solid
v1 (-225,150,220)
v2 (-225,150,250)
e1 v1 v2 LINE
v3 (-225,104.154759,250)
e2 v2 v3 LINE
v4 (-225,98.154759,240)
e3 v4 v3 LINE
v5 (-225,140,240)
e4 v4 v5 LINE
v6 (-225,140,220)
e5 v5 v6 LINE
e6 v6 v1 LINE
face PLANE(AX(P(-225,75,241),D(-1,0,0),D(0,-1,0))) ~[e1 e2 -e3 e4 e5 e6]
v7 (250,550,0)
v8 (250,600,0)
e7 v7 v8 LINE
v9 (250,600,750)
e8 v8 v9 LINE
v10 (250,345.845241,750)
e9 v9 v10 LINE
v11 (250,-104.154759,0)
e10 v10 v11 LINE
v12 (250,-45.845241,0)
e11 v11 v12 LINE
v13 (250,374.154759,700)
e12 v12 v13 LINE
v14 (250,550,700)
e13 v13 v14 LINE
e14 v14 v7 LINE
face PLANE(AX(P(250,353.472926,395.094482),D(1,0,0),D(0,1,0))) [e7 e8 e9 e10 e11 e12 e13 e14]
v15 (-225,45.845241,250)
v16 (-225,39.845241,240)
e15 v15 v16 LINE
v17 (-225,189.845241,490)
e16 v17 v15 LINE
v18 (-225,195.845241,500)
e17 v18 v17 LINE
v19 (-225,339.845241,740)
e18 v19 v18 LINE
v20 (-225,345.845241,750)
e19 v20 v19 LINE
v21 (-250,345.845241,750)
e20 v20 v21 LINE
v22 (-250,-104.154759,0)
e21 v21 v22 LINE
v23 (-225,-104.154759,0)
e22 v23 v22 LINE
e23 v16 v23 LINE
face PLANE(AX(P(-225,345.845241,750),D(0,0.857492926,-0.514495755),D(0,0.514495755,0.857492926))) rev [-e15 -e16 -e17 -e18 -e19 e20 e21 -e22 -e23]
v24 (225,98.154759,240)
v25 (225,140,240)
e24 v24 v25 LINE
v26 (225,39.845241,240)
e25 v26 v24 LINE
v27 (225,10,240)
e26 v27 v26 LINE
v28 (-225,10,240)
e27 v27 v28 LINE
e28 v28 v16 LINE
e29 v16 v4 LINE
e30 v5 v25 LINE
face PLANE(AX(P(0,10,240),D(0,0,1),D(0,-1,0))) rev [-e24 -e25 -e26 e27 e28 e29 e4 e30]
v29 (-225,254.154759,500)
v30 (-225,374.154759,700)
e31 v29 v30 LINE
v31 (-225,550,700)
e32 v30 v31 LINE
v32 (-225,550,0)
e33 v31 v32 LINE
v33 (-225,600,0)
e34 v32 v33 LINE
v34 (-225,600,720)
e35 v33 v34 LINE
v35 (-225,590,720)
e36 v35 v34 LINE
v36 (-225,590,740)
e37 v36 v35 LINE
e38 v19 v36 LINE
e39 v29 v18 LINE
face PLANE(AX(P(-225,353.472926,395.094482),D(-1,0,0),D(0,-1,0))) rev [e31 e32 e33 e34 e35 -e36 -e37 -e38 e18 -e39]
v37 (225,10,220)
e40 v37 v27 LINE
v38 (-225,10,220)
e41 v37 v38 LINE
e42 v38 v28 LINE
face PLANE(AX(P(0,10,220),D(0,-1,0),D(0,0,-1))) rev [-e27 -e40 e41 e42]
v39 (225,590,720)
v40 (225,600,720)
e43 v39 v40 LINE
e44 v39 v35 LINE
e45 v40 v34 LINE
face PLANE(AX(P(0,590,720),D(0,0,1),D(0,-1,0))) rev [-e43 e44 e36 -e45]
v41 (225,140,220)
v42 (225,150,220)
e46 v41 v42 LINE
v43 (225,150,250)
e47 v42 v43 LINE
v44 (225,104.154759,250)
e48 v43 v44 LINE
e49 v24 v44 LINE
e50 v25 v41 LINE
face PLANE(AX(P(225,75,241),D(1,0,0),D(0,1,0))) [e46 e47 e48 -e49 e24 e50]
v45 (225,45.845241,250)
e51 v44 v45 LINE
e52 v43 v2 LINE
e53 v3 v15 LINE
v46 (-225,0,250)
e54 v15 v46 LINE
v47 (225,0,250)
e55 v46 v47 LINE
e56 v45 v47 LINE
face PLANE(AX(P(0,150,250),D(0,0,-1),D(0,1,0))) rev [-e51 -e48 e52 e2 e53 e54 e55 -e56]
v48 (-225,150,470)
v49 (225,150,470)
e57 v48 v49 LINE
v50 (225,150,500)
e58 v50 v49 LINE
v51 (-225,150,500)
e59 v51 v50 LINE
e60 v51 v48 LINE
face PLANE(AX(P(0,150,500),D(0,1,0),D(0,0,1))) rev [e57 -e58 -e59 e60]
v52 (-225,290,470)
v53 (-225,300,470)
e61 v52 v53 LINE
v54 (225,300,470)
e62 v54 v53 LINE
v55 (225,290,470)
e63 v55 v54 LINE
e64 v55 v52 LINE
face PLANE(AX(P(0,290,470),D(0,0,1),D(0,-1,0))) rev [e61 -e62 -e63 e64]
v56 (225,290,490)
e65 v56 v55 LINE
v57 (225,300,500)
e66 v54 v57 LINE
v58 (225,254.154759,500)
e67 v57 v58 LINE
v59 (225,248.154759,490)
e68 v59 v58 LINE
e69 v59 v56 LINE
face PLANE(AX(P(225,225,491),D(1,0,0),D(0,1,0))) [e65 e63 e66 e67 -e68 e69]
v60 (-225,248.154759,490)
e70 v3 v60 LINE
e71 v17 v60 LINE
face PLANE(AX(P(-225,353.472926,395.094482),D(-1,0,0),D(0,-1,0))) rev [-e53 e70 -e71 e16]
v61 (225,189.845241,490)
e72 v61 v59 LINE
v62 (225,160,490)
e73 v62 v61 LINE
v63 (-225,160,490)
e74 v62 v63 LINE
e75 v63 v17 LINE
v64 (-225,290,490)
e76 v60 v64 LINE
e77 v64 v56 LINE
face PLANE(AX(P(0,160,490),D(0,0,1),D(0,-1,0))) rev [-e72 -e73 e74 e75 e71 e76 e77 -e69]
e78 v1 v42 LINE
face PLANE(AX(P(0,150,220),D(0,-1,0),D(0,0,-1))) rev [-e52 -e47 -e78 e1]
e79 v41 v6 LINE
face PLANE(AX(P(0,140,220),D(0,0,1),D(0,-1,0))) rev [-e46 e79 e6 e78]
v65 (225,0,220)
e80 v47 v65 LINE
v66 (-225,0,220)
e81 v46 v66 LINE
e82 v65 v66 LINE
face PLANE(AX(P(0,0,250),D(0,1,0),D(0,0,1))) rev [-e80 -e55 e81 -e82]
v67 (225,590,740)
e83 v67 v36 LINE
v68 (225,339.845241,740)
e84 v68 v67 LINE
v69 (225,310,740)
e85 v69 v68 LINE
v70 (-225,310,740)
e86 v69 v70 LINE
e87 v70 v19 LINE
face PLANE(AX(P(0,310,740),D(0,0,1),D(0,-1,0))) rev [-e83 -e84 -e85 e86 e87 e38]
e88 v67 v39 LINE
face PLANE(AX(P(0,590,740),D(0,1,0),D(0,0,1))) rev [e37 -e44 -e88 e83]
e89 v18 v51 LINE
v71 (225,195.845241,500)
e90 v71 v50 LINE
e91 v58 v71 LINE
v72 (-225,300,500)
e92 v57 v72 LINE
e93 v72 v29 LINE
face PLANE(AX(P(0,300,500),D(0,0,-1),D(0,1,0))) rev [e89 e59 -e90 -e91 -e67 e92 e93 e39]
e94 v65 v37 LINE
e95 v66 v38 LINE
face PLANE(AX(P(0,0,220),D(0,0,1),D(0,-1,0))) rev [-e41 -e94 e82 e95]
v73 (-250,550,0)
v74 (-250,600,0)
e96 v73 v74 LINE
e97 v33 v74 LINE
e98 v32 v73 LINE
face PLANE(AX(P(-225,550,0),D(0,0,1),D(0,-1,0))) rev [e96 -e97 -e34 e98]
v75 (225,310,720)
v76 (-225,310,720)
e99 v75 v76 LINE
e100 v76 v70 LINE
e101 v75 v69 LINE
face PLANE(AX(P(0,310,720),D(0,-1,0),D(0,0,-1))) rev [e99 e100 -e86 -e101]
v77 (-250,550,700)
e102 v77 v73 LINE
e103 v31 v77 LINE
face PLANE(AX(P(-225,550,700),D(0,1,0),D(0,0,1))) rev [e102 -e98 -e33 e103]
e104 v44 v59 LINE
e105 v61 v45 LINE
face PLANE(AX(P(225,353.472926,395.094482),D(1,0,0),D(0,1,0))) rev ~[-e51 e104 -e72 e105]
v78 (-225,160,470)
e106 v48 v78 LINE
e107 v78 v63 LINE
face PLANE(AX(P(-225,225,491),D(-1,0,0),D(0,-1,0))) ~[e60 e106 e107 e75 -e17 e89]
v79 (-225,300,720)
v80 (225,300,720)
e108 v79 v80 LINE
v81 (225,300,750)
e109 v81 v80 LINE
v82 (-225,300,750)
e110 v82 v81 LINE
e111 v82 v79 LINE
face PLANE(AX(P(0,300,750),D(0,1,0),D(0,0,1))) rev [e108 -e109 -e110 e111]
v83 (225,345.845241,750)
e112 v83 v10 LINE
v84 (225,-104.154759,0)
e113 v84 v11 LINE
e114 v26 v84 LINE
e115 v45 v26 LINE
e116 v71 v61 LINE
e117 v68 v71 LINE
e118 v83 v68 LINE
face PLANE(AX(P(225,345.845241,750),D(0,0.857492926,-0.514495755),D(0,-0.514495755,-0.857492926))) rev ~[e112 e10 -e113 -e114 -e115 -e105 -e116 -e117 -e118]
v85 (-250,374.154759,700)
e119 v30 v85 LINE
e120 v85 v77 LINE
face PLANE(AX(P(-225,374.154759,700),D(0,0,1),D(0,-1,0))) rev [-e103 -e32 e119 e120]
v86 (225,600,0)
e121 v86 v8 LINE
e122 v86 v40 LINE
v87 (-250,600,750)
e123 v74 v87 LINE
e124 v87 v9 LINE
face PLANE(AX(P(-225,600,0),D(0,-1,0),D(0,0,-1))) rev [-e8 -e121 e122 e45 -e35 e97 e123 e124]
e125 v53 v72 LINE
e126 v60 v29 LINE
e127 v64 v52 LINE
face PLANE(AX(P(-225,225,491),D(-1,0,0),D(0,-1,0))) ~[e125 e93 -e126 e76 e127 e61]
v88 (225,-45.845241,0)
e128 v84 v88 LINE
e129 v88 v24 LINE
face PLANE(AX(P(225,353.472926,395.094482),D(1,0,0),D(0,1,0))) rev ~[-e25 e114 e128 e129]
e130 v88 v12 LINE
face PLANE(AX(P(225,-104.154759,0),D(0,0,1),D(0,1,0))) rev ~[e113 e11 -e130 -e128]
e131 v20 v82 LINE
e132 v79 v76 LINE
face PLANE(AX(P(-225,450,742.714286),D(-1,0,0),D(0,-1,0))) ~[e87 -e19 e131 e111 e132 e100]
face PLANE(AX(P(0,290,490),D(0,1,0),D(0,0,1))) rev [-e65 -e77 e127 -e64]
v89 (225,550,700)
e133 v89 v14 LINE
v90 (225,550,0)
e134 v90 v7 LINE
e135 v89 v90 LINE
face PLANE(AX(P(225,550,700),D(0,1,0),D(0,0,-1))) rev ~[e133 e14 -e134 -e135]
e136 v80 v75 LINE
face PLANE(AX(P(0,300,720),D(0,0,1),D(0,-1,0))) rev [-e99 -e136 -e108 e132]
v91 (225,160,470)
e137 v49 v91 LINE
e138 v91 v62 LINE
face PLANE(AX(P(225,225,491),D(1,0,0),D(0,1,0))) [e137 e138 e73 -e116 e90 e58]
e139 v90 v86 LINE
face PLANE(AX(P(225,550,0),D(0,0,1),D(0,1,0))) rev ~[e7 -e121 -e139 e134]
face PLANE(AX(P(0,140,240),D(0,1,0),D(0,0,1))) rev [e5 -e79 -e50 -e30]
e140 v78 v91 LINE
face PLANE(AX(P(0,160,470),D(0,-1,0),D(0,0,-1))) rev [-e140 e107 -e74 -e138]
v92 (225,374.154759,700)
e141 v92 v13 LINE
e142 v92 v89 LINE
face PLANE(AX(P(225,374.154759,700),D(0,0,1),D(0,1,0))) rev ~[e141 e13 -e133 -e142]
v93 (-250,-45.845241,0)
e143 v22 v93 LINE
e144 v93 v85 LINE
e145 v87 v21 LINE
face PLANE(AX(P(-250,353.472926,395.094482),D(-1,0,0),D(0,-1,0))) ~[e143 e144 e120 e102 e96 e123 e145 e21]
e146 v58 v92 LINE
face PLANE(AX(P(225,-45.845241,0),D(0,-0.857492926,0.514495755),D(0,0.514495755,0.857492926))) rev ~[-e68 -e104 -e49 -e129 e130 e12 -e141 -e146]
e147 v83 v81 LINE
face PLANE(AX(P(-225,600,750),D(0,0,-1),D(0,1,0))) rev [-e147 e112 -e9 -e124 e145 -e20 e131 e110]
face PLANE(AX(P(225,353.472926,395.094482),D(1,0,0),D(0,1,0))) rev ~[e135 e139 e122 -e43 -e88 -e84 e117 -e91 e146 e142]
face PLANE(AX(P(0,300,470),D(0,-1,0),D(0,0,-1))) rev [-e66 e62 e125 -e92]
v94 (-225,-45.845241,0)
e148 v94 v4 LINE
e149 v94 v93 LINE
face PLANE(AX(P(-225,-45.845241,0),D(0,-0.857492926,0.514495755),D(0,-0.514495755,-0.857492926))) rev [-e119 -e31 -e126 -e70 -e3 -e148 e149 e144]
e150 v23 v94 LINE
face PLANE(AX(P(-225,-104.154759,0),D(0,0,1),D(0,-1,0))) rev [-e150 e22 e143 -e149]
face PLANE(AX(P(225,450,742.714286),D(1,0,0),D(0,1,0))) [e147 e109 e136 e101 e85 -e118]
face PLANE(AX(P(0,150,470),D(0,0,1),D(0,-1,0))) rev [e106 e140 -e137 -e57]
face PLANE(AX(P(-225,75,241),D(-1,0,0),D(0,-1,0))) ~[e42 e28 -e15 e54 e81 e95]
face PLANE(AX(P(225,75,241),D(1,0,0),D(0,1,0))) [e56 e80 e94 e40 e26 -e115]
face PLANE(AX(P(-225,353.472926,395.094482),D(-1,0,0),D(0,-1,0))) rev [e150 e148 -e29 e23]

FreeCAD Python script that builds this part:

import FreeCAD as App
import Part
import Sketcher

V = App.Vector
Q = App.Units.Quantity

doc = App.newDocument("Part")
body = doc.addObject("PartDesign::Body", "Body")

sketch1 = body.newObject("Sketcher::SketchObject", "Sketch")
sketch1.AttachmentSupport = (doc.getObject("YZ_Plane"), [""])
sketch1.MapMode = "FlatFace"
sketch1.addGeometry([
    Part.LineSegment(V(150, 220, 0), V(150, 250, 0)),
    Part.LineSegment(V(150, 250, 0), V(0, 250, 0)),
    Part.LineSegment(V(0, 250, 0), V(0, 220, 0)),
    Part.LineSegment(V(0, 220, 0), V(10, 220, 0)),
    Part.LineSegment(V(10, 220, 0), V(10, 240, 0)),
    Part.LineSegment(V(10, 240, 0), V(140, 240, 0)),
    Part.LineSegment(V(140, 240, 0), V(140, 220, 0)),
    Part.LineSegment(V(140, 220, 0), V(150, 220, 0)),
], False)
sketch1.addConstraint([
    Sketcher.Constraint("Coincident", 0, 2, 1, 1),
    Sketcher.Constraint("Coincident", 1, 2, 2, 1),
    Sketcher.Constraint("Coincident", 2, 2, 3, 1),
    Sketcher.Constraint("Coincident", 3, 2, 4, 1),
    Sketcher.Constraint("Coincident", 4, 2, 5, 1),
    Sketcher.Constraint("Coincident", 5, 2, 6, 1),
    Sketcher.Constraint("Coincident", 6, 2, 7, 1),
    Sketcher.Constraint("Coincident", 7, 2, 0, 1),
    Sketcher.Constraint("Vertical", 0),
    Sketcher.Constraint("Horizontal", 1),
    Sketcher.Constraint("Vertical", 2),
    Sketcher.Constraint("Horizontal", 3),
    Sketcher.Constraint("Vertical", 4),
    Sketcher.Constraint("Horizontal", 5),
    Sketcher.Constraint("Vertical", 6),
    Sketcher.Constraint("Horizontal", 7),
    Sketcher.Constraint("PointOnObject", 1, 2, -2),
    Sketcher.Constraint("Horizontal", 3, 2, 6, 2),
    Sketcher.Constraint("Equal", 3, 7),
    Sketcher.Constraint("DistanceX", 1, 2, 1, 1, Q("150 mm")),
    Sketcher.Constraint("DistanceX", 3, 1, 3, 2, Q("10 mm")),
    Sketcher.Constraint("DistanceY", 0, 1, 0, 2, Q("30 mm")),
    Sketcher.Constraint("DistanceY", 4, 1, 4, 2, Q("20 mm")),
    Sketcher.Constraint("DistanceY", -1, 1, 0, 2, Q("250 mm")),
])
pad1 = body.newObject("PartDesign::Pad", "Pad")
pad1.Profile = sketch1
pad1.Length = 225
body2 = doc.addObject("PartDesign::Body", "Body001")

sketch2 = body2.newObject("Sketcher::SketchObject", "Sketch001")
sketch2.AttachmentSupport = (doc.getObject("YZ_Plane001"), [""])
sketch2.MapMode = "FlatFace"
sketch2.addGeometry([
    Part.LineSegment(V(160, 470, 0), V(160, 490, 0)),
    Part.LineSegment(V(160, 490, 0), V(290, 490, 0)),
    Part.LineSegment(V(290, 490, 0), V(290, 470, 0)),
    Part.LineSegment(V(290, 470, 0), V(300, 470, 0)),
    Part.LineSegment(V(300, 470, 0), V(300, 500, 0)),
    Part.LineSegment(V(300, 500, 0), V(150, 500, 0)),
    Part.LineSegment(V(150, 500, 0), V(150, 470, 0)),
    Part.LineSegment(V(150, 470, 0), V(160, 470, 0)),
], False)
sketch2.addConstraint([
    Sketcher.Constraint("Coincident", 0, 2, 1, 1),
    Sketcher.Constraint("Coincident", 1, 2, 2, 1),
    Sketcher.Constraint("Coincident", 2, 2, 3, 1),
    Sketcher.Constraint("Coincident", 3, 2, 4, 1),
    Sketcher.Constraint("Coincident", 4, 2, 5, 1),
    Sketcher.Constraint("Coincident", 5, 2, 6, 1),
    Sketcher.Constraint("Coincident", 6, 2, 7, 1),
    Sketcher.Constraint("Coincident", 7, 2, 0, 1),
    Sketcher.Constraint("Vertical", 0),
    Sketcher.Constraint("Horizontal", 1),
    Sketcher.Constraint("Vertical", 2),
    Sketcher.Constraint("Horizontal", 3),
    Sketcher.Constraint("Vertical", 4),
    Sketcher.Constraint("Horizontal", 5),
    Sketcher.Constraint("Vertical", 6),
    Sketcher.Constraint("Horizontal", 7),
    Sketcher.Constraint("Horizontal", 3, 2, 6, 2),
    Sketcher.Constraint("Equal", 3, 7),
    Sketcher.Constraint("DistanceX", 1, 1, 1, 2, Q("130 mm")),
    Sketcher.Constraint("DistanceX", 3, 1, 3, 2, Q("10 mm")),
    Sketcher.Constraint("DistanceY", 0, 1, 0, 2, Q("20 mm")),
    Sketcher.Constraint("DistanceY", 4, 1, 4, 2, Q("30 mm")),
    Sketcher.Constraint("DistanceX", -1, 1, 0, 2, Q("160 mm")),
    Sketcher.Constraint("DistanceY", -1, 1, 0, 2, Q("490 mm")),
])
pad2 = body2.newObject("PartDesign::Pad", "Pad001")
pad2.Profile = sketch2
pad2.Length = 225
body3 = doc.addObject("PartDesign::Body", "Body002")

sketch3 = body3.newObject("Sketcher::SketchObject", "Sketch002")
sketch3.AttachmentSupport = (doc.getObject("YZ_Plane002"), [""])
sketch3.MapMode = "FlatFace"
sketch3.addGeometry([
    Part.LineSegment(V(300, 750, 0), V(300, 720, 0)),
    Part.LineSegment(V(300, 720, 0), V(310, 720, 0)),
    Part.LineSegment(V(310, 720, 0), V(310, 740, 0)),
    Part.LineSegment(V(310, 740, 0), V(590, 740, 0)),
    Part.LineSegment(V(590, 740, 0), V(590, 720, 0)),
    Part.LineSegment(V(590, 720, 0), V(600, 720, 0)),
    Part.LineSegment(V(600, 720, 0), V(600, 750, 0)),
    Part.LineSegment(V(600, 750, 0), V(300, 750, 0)),
], False)
sketch3.addConstraint([
    Sketcher.Constraint("Coincident", 0, 2, 1, 1),
    Sketcher.Constraint("Coincident", 1, 2, 2, 1),
    Sketcher.Constraint("Coincident", 2, 2, 3, 1),
    Sketcher.Constraint("Coincident", 3, 2, 4, 1),
    Sketcher.Constraint("Coincident", 4, 2, 5, 1),
    Sketcher.Constraint("Coincident", 5, 2, 6, 1),
    Sketcher.Constraint("Coincident", 6, 2, 7, 1),
    Sketcher.Constraint("Coincident", 7, 2, 0, 1),
    Sketcher.Constraint("Vertical", 0),
    Sketcher.Constraint("Horizontal", 1),
    Sketcher.Constraint("Vertical", 2),
    Sketcher.Constraint("Horizontal", 3),
    Sketcher.Constraint("Vertical", 4),
    Sketcher.Constraint("Horizontal", 5),
    Sketcher.Constraint("Vertical", 6),
    Sketcher.Constraint("Horizontal", 7),
    Sketcher.Constraint("Horizontal", 1, 2, 4, 2),
    Sketcher.Constraint("Equal", 1, 5),
    Sketcher.Constraint("DistanceX", 1, 1, 1, 2, Q("10 mm")),
    Sketcher.Constraint("DistanceX", 3, 1, 3, 2, Q("280 mm")),
    Sketcher.Constraint("DistanceY", 0, 2, 0, 1, Q("30 mm")),
    Sketcher.Constraint("DistanceY", 2, 1, 2, 2, Q("20 mm")),
    Sketcher.Constraint("DistanceX", -1, 1, 0, 2, Q("300 mm")),
    Sketcher.Constraint("DistanceY", -1, 1, 0, 2, Q("720 mm")),
])
pad3 = body3.newObject("PartDesign::Pad", "Pad002")
pad3.Profile = sketch3
pad3.Length = 225
body.AllowCompound = True
doc.recompute()

boolean = body.newObject("PartDesign::Boolean", "Boolean")
boolean.Type = "Fuse"
boolean.addObjects([body2])
doc.recompute()

boolean2 = body.newObject("PartDesign::Boolean", "Boolean001")
boolean2.Type = "Fuse"
boolean2.addObjects([body3])

sketch4 = body.newObject("Sketcher::SketchObject", "Sketch003")
sketch4.AttachmentSupport = (doc.getObject("YZ_Plane"), [""])
sketch4.MapMode = "FlatFace"
sketch4.AttachmentOffset = App.Placement(V(0, 0, 225), App.Rotation())
sketch4.addGeometry([
    Part.LineSegment(V(600, 0, 0), V(600, 750, 0)),
    Part.LineSegment(V(600, 750, 0), V(346, 750, 0)),
    Part.LineSegment(V(346, 750, 0), V(-104, 0, 0)),
    Part.LineSegment(V(-104, 0, 0), V(-46, 0, 0)),
    Part.LineSegment(V(-46, 0, 0), V(374, 700, 0)),
    Part.LineSegment(V(374, 700, 0), V(550, 700, 0)),
    Part.LineSegment(V(550, 700, 0), V(550, 0, 0)),
    Part.LineSegment(V(550, 0, 0), V(600, 0, 0)),
], False)
sketch4.addConstraint([
    Sketcher.Constraint("Coincident", 0, 2, 1, 1),
    Sketcher.Constraint("Coincident", 1, 2, 2, 1),
    Sketcher.Constraint("Coincident", 2, 2, 3, 1),
    Sketcher.Constraint("Coincident", 3, 2, 4, 1),
    Sketcher.Constraint("Coincident", 4, 2, 5, 1),
    Sketcher.Constraint("Coincident", 5, 2, 6, 1),
    Sketcher.Constraint("Coincident", 6, 2, 7, 1),
    Sketcher.Constraint("Coincident", 7, 2, 0, 1),
    Sketcher.Constraint("Vertical", 0),
    Sketcher.Constraint("Horizontal", 1),
    Sketcher.Constraint("Horizontal", 3),
    Sketcher.Constraint("Horizontal", 5),
    Sketcher.Constraint("Vertical", 6),
    Sketcher.Constraint("Horizontal", 7),
    Sketcher.Constraint("PointOnObject", 2, 2, -1),
    Sketcher.Constraint("PointOnObject", 6, 2, -1),
    Sketcher.Constraint("Parallel", 2, 4),
    Sketcher.Constraint("DistanceX", 7, 1, 7, 2, Q("50 mm")),
    Sketcher.Constraint("DistanceY", 0, 1, 0, 2, Q("750 mm")),
    Sketcher.Constraint("DistanceY", 6, 2, 6, 1, Q("700 mm")),
    Sketcher.Constraint("DistanceX", -1, 1, 0, 2, Q("600 mm")),
    Sketcher.Constraint("DistanceX", 2, 2, 1, 2, Q("450 mm")),
    Sketcher.Constraint("DistanceX", 1, 2, 1, 1, Q("254.154759 mm")),
    Sketcher.Constraint("DistanceX", 3, 1, 3, 2, Q("58.309519 mm")),
])
pad4 = body.newObject("PartDesign::Pad", "Pad003")
pad4.Profile = sketch4
pad4.Length = 25
body4 = doc.addObject("PartDesign::Body", "Body003")
doc.recompute()

body4.BaseFeature = body
doc.recompute()

mirroring = doc.addObject("Part::Mirroring", "Mirroring")
mirroring.Source = body
mirroring.Base = V(0, 0, 0)
mirroring.Normal = V(1, 0, 0)
body5 = doc.addObject("PartDesign::Body", "Body004")
body5.BaseFeature = mirroring
boolean3 = body4.newObject("PartDesign::Boolean", "Boolean002")
boolean3.Type = "Fuse"
boolean3.addObjects([body5])
doc.recompute()
mirroring.Visibility = False

doc.recompute()
